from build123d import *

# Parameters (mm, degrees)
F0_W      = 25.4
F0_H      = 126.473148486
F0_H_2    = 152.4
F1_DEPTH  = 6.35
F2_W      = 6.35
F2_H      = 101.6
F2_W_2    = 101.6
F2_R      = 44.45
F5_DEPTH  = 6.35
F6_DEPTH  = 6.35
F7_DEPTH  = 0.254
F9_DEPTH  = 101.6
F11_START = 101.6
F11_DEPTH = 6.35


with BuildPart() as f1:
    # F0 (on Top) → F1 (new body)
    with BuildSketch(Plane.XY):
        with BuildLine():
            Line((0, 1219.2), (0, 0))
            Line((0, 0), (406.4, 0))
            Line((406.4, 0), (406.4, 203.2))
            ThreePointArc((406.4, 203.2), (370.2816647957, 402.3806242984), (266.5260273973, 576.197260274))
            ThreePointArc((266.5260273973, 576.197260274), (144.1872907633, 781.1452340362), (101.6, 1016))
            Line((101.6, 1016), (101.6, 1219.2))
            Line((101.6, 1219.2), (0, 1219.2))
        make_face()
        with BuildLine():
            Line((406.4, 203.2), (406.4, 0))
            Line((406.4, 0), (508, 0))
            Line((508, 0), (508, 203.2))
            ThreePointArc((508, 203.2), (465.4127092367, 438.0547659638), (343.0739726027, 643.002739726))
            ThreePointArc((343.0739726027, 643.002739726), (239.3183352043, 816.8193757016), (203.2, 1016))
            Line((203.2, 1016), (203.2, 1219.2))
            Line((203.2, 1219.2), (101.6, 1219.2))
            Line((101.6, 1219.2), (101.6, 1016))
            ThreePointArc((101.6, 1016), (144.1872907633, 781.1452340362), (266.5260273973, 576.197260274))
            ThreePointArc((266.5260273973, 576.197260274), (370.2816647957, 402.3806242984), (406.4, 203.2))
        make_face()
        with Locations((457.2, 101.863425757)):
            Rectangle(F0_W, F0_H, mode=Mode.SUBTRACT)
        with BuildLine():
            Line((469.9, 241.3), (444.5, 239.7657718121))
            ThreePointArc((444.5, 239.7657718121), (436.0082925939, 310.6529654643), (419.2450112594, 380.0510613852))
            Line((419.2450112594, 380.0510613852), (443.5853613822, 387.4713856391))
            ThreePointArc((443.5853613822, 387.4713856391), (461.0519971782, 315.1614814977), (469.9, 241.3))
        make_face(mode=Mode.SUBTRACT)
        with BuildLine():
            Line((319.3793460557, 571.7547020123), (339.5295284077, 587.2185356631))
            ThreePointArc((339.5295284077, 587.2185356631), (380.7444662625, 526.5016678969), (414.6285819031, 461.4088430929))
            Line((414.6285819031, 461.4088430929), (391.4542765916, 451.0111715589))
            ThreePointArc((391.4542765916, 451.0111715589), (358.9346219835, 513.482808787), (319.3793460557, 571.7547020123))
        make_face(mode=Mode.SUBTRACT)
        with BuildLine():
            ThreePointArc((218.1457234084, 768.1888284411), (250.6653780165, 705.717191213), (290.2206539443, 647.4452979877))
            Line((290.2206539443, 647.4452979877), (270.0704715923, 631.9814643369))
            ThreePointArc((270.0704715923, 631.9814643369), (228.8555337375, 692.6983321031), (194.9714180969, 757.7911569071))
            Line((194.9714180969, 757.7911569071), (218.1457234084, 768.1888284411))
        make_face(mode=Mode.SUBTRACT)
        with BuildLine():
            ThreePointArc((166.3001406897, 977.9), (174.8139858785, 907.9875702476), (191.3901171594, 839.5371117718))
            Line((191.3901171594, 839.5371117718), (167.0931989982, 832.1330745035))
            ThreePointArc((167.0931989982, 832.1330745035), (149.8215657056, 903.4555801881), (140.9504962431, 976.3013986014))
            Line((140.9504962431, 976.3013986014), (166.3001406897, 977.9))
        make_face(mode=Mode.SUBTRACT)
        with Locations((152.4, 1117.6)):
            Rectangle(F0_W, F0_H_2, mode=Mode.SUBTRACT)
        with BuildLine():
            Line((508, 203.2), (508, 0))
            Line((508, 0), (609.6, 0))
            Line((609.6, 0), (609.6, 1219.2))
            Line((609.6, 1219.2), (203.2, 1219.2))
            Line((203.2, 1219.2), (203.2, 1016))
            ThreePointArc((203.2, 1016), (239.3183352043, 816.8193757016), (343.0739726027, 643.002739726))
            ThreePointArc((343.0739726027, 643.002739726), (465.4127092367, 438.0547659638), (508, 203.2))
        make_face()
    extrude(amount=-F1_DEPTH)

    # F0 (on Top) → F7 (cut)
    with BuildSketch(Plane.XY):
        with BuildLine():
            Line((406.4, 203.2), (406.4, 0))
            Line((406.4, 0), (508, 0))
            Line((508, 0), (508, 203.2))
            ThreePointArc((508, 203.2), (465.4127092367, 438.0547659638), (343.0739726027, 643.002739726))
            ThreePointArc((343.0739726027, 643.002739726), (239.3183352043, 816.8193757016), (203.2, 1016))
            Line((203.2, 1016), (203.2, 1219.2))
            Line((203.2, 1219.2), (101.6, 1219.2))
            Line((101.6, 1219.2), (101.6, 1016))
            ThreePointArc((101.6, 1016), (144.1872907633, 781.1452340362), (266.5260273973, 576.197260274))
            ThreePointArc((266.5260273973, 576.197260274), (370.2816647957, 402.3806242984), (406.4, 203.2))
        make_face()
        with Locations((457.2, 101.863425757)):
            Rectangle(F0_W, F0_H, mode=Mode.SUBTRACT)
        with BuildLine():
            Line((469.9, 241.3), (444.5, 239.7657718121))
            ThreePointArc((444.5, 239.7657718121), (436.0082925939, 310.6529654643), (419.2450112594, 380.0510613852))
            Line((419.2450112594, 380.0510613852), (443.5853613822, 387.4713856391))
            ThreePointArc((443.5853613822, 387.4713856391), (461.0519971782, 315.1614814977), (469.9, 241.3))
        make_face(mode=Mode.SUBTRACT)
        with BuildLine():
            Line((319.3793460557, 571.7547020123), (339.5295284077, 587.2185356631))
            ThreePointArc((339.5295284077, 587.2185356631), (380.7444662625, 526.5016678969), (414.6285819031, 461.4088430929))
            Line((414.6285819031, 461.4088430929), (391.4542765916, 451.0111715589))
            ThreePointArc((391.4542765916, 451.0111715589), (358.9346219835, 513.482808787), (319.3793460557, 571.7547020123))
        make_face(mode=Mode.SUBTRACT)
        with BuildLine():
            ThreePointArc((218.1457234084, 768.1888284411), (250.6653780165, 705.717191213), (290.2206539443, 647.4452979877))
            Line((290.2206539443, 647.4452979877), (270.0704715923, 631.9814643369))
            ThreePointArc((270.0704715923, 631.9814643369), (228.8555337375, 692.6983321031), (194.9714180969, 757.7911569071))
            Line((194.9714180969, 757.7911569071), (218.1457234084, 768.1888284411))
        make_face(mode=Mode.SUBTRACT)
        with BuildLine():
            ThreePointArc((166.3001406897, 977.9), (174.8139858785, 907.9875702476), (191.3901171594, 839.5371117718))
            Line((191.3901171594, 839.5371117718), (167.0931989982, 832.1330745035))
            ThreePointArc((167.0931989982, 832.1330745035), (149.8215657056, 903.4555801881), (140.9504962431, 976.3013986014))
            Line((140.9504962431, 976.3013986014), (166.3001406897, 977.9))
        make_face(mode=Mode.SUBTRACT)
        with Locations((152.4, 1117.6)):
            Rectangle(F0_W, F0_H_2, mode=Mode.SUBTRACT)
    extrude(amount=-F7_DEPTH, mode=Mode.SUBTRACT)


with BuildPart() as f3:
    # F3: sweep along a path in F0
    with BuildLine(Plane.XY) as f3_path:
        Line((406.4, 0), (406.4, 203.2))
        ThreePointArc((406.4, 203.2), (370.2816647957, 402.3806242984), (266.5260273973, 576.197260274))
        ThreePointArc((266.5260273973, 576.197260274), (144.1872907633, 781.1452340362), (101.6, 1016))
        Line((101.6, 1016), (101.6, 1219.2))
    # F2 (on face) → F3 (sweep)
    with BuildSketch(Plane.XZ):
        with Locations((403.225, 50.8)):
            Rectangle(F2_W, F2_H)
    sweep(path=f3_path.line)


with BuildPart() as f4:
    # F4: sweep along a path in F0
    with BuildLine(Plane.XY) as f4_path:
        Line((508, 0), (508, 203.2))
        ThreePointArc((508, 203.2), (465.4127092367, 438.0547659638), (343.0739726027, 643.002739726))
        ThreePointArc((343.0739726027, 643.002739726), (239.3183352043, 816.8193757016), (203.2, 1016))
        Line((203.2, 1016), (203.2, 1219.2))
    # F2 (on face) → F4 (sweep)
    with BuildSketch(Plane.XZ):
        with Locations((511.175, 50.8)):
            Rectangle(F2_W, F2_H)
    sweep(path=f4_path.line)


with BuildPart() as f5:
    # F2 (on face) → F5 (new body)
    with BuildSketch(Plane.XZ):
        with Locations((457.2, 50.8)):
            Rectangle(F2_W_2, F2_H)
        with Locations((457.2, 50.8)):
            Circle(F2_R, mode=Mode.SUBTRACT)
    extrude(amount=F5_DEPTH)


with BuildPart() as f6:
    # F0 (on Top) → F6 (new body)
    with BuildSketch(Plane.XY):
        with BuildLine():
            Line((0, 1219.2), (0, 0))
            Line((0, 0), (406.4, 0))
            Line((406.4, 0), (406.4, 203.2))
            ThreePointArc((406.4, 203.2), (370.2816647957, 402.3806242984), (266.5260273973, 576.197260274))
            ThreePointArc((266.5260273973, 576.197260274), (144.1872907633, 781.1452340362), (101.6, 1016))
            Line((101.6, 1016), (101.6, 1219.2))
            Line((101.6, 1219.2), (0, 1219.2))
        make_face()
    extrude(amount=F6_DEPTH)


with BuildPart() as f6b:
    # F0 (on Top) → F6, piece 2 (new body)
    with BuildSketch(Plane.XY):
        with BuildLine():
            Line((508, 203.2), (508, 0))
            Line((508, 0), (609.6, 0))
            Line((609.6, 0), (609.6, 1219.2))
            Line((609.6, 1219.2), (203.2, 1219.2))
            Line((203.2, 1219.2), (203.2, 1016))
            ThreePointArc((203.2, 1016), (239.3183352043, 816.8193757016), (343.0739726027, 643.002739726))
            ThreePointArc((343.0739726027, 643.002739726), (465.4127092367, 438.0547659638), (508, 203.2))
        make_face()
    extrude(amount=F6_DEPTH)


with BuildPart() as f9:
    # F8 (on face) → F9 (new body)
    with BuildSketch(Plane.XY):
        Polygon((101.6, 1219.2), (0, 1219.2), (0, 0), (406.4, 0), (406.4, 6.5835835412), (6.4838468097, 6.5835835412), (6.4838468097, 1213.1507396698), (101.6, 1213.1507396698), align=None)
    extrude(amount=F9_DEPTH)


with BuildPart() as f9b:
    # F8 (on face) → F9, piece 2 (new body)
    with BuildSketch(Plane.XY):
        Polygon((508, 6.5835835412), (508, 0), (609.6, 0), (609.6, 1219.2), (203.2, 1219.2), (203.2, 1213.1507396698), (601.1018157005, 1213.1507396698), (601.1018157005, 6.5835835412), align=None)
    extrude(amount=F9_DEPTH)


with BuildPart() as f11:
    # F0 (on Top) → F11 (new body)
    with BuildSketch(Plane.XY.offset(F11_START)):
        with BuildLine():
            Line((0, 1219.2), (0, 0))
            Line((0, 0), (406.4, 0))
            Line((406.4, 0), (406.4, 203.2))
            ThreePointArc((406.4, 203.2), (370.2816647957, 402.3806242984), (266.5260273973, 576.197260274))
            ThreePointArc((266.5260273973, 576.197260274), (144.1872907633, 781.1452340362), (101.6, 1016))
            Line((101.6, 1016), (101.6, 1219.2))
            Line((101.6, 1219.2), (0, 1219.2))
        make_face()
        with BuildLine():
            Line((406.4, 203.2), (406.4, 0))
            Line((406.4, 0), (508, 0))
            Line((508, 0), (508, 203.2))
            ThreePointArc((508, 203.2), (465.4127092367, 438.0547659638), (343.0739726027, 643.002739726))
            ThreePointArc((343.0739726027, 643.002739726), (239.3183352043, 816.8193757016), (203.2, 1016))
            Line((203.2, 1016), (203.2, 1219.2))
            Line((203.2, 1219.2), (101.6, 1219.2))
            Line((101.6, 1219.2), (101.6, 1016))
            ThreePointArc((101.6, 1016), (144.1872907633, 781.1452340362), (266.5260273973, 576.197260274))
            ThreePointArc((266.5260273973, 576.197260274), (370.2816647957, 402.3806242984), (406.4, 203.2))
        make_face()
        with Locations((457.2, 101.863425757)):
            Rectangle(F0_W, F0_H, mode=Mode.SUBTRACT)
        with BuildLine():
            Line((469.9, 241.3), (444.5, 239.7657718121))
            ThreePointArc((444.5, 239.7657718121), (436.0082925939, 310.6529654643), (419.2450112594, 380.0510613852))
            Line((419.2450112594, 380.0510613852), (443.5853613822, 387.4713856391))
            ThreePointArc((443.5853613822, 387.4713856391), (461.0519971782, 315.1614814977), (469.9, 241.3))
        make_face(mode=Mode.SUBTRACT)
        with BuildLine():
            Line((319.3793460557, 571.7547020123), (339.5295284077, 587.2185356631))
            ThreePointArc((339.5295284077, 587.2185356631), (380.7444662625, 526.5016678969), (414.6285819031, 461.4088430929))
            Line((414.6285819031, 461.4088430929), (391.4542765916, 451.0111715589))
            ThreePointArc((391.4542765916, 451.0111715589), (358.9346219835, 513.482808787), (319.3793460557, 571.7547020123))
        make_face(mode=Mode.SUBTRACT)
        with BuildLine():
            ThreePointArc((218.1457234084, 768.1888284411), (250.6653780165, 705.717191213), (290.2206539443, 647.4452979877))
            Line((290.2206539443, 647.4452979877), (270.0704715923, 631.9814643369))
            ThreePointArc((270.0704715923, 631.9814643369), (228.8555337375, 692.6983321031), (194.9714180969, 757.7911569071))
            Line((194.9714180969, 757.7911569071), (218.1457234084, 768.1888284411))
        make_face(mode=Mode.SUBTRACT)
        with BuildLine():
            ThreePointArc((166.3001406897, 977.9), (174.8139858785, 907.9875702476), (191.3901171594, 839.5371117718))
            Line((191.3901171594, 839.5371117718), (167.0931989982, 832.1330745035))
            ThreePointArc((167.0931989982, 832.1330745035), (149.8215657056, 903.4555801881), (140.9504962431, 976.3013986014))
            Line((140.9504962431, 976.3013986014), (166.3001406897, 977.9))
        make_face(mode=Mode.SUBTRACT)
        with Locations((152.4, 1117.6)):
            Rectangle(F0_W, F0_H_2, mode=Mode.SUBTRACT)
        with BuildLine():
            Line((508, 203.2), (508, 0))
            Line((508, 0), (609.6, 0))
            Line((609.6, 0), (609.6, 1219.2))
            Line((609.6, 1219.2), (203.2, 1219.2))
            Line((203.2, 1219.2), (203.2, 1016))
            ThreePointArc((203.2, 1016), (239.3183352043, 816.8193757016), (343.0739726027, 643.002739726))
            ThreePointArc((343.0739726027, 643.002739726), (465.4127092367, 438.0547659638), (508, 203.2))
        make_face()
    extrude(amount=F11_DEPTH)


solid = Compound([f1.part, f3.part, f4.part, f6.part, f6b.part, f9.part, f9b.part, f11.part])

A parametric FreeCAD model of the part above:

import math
import FreeCAD as App
import Part
import Sketcher
from FreeCAD import Vector
Q = App.Units.Quantity

doc = App.newDocument("Part")
body = doc.addObject("PartDesign::Body", "Body")

# Sketch on XY plane
sketch1 = doc.addObject("Sketcher::SketchObject", "Sketch")
body.addObject(sketch1)
sketch1.AttachmentSupport = (doc.XY_Plane, [""])
sketch1.MapMode = "FlatFace"
sketch1.addGeometry([
    Part.LineSegment(Vector(0, 1219, 0), Vector(0, 0, 0)),  # 0
    Part.LineSegment(Vector(0, 0, 0), Vector(610, 0, 0)),  # 1
    Part.LineSegment(Vector(610, 0, 0), Vector(610, 1219, 0)),  # 2
    Part.LineSegment(Vector(610, 1219, 0), Vector(0, 1219, 0)),  # 3
    Part.LineSegment(Vector(470, 39, 0), Vector(444, 39, 0)),  # 4
    Part.LineSegment(Vector(444, 39, 0), Vector(444, 165, 0)),  # 5
    Part.LineSegment(Vector(444, 165, 0), Vector(470, 165, 0)),  # 6
    Part.LineSegment(Vector(470, 165, 0), Vector(470, 39, 0)),  # 7
    Part.ArcOfCircle(Part.Circle(Vector(-161, 203, 0), Vector(0, 0, 1), 632), math.radians(3.46), math.radians(16.95)),  # 8
    Part.LineSegment(Vector(470, 241, 0), Vector(444, 240, 0)),  # 9
    Part.ArcOfCircle(Part.Circle(Vector(-161, 203, 0), Vector(0, 0, 1), 606), math.radians(3.46), math.radians(16.95)),  # 10
    Part.LineSegment(Vector(419, 380, 0), Vector(444, 387, 0)),  # 11
    Part.ArcOfCircle(Part.Circle(Vector(-161, 203, 0), Vector(0, 0, 1), 605), math.radians(24.16), math.radians(37.5)),  # 12
    Part.LineSegment(Vector(319, 572, 0), Vector(340, 587, 0)),  # 13
    Part.ArcOfCircle(Part.Circle(Vector(-161, 203, 0), Vector(0, 0, 1), 631), math.radians(24.16), math.radians(37.5)),  # 14
    Part.LineSegment(Vector(415, 461, 0), Vector(391, 451, 0)),  # 15
    Part.LineSegment(Vector(195, 758, 0), Vector(218, 768, 0)),  # 16
    Part.ArcOfCircle(Part.Circle(Vector(770, 1016, 0), Vector(0, 0, 1), 605), math.radians(-155.84), math.radians(-142.5)),  # 17
    Part.LineSegment(Vector(290, 647, 0), Vector(270, 632, 0)),  # 18
    Part.ArcOfCircle(Part.Circle(Vector(770, 1016, 0), Vector(0, 0, 1), 631), math.radians(-155.84), math.radians(-142.5)),  # 19
    Part.LineSegment(Vector(141, 976, 0), Vector(166, 978, 0)),  # 20
    Part.ArcOfCircle(Part.Circle(Vector(770, 1016, 0), Vector(0, 0, 1), 605), math.radians(-176.39), math.radians(-163.05)),  # 21
    Part.LineSegment(Vector(191, 840, 0), Vector(167, 832, 0)),  # 22
    Part.ArcOfCircle(Part.Circle(Vector(770, 1016, 0), Vector(0, 0, 1), 631), math.radians(-176.39), math.radians(-163.05)),  # 23
    Part.LineSegment(Vector(165, 1041, 0), Vector(140, 1041, 0)),  # 24
    Part.LineSegment(Vector(140, 1041, 0), Vector(140, 1194, 0)),  # 25
    Part.LineSegment(Vector(140, 1194, 0), Vector(165, 1194, 0)),  # 26
    Part.LineSegment(Vector(165, 1194, 0), Vector(165, 1041, 0)),  # 27
], False)
sketch1.addConstraint([
    Sketcher.Constraint("Coincident", 0, 2, 1, 1),
    Sketcher.Constraint("Coincident", 1, 2, 2, 1),
    Sketcher.Constraint("Coincident", 2, 2, 3, 1),
    Sketcher.Constraint("Coincident", 3, 2, 0, 1),
    Sketcher.Constraint("Coincident", 4, 2, 5, 1),
    Sketcher.Constraint("Coincident", 5, 2, 6, 1),
    Sketcher.Constraint("Coincident", 6, 2, 7, 1),
    Sketcher.Constraint("Coincident", 7, 2, 4, 1),
    Sketcher.Constraint("Coincident", 8, 1, 9, 1),
    Sketcher.Constraint("Coincident", 9, 2, 10, 1),
    Sketcher.Constraint("Coincident", 10, 2, 11, 1),
    Sketcher.Constraint("Coincident", 11, 2, 8, 2),
    Sketcher.Constraint("Coincident", 12, 2, 13, 1),
    Sketcher.Constraint("Coincident", 13, 2, 14, 2),
    Sketcher.Constraint("Coincident", 14, 1, 15, 1),
    Sketcher.Constraint("Coincident", 15, 2, 12, 1),
    Sketcher.Constraint("Coincident", 16, 2, 17, 1),
    Sketcher.Constraint("Coincident", 17, 2, 18, 1),
    Sketcher.Constraint("Coincident", 18, 2, 19, 2),
    Sketcher.Constraint("Coincident", 19, 1, 16, 1),
    Sketcher.Constraint("Coincident", 20, 2, 21, 1),
    Sketcher.Constraint("Coincident", 21, 2, 22, 1),
    Sketcher.Constraint("Coincident", 22, 2, 23, 2),
    Sketcher.Constraint("Coincident", 23, 1, 20, 1),
    Sketcher.Constraint("Coincident", 24, 2, 25, 1),
    Sketcher.Constraint("Coincident", 25, 2, 26, 1),
    Sketcher.Constraint("Coincident", 26, 2, 27, 1),
    Sketcher.Constraint("Coincident", 27, 2, 24, 1),
    Sketcher.Constraint("Vertical", 0),
    Sketcher.Constraint("Horizontal", 1),
    Sketcher.Constraint("Vertical", 2),
    Sketcher.Constraint("Horizontal", 3),
    Sketcher.Constraint("Horizontal", 4),
    Sketcher.Constraint("Vertical", 5),
    Sketcher.Constraint("Horizontal", 6),
    Sketcher.Constraint("Vertical", 7),
    Sketcher.Constraint("Horizontal", 24),
    Sketcher.Constraint("Vertical", 25),
    Sketcher.Constraint("Horizontal", 26),
    Sketcher.Constraint("Vertical", 27),
    Sketcher.Constraint("Coincident", 0, 2, -1, 1),
    Sketcher.Constraint("Coincident", 10, 3, 8, 3),
    Sketcher.Constraint("Coincident", 12, 3, 8, 3),
    Sketcher.Constraint("Coincident", 14, 3, 8, 3),
    Sketcher.Constraint("Coincident", 19, 3, 17, 3),
    Sketcher.Constraint("Coincident", 21, 3, 17, 3),
    Sketcher.Constraint("Coincident", 23, 3, 17, 3),
    Sketcher.Constraint("Equal", 12, 17),
    Sketcher.Constraint("Equal", 14, 19),
    Sketcher.Constraint("Equal", 17, 21),
    Sketcher.Constraint("Equal", 19, 23),
    Sketcher.Constraint("Parallel", 15, 16),
    Sketcher.Constraint("Parallel", 13, 18),
    Sketcher.Constraint("Vertical", 7, 2, 8, 1),
    Sketcher.Constraint("Vertical", 5, 2, 9, 2),
    Sketcher.Constraint("Equal", 6, 24),
    Sketcher.Constraint("DistanceX", 1, 1, 1, 2, Q("24 in")),
    Sketcher.Constraint("DistanceX", 4, 2, 4, 1, Q("1 in")),
    Sketcher.Constraint("DistanceY", 0, 2, 0, 1, Q("48 in")),
    Sketcher.Constraint("DistanceY", 25, 1, 25, 2, Q("6 in")),
    Sketcher.Constraint("Distance", 13, Q("1 in")),
    Sketcher.Constraint("DistanceY", -1, 1, 8, 3, Q("8 in")),
    Sketcher.Constraint("DistanceY", -1, 1, 17, 3, Q("40 in")),
    Sketcher.Constraint("DistanceY", -1, 1, 24, 2, Q("41 in")),
    Sketcher.Constraint("DistanceX", -1, 1, 4, 2, Q("17.5 in")),
    Sketcher.Constraint("DistanceY", -1, 1, 5, 2, Q("6.5 in")),
    Sketcher.Constraint("DistanceY", -1, 1, 20, 2, Q("38.5 in")),
    Sketcher.Constraint("DistanceX", -1, 1, 24, 2, Q("5.5 in")),
    Sketcher.Constraint("Radius", 8, 631.91629),
    Sketcher.Constraint("Radius", 10, 606.469997),
    Sketcher.Constraint("Radius", 12, 605.366667),
    Sketcher.Constraint("DistanceY", 5, 1, 5, 2, 126.473148),
    Sketcher.Constraint("DistanceX", -1, 1, 22, 2, 167.093199),
    Sketcher.Constraint("DistanceY", -1, 1, 9, 2, 239.765772),
    Sketcher.Constraint("DistanceX", -1, 1, 11, 2, 443.585361),
    Sketcher.Constraint("DistanceX", -1, 1, 13, 2, 339.529528),
    Sketcher.Constraint("DistanceY", -1, 1, 15, 2, 451.011172),
    Sketcher.Constraint("DistanceY", -1, 1, 16, 2, 768.188828),
    Sketcher.Constraint("DistanceX", -1, 1, 18, 2, 270.070472),
    Sketcher.Constraint("DistanceX", -1, 1, 20, 2, 166.300141),
    Sketcher.Constraint("Angle", 11, Q("16.954206 deg")),
    Sketcher.Constraint("Angle", 13, Q("37.503677 deg")),
    Sketcher.Constraint("Angle", 15, Q("-155.835542 deg")),
    Sketcher.Constraint("Angle", 20, Q("3.608413 deg")),
    Sketcher.Constraint("Angle", 22, Q("-163.052368 deg")),
])
pad1 = doc.addObject("PartDesign::Pad", "Pad")
body.addObject(pad1)
pad1.Profile = sketch1
pad1.Length = Q("0.25 in")
pad1.Reversed = True

# Sketch on XY plane
sketch2 = doc.addObject("Sketcher::SketchObject", "Sketch001")
body.addObject(sketch2)
sketch2.AttachmentSupport = (doc.XY_Plane, [""])
sketch2.MapMode = "FlatFace"
sketch2.addGeometry([
    Part.LineSegment(Vector(406, 203, 0), Vector(406, 0, 0)),  # 0
    Part.LineSegment(Vector(406, 0, 0), Vector(508, 0, 0)),  # 1
    Part.LineSegment(Vector(508, 0, 0), Vector(508, 203, 0)),  # 2
    Part.ArcOfCircle(Part.Circle(Vector(-161, 203, 0), Vector(0, 0, 1), 669), math.radians(0), math.radians(41)),  # 3
    Part.ArcOfCircle(Part.Circle(Vector(770, 1016, 0), Vector(0, 0, 1), 567), math.radians(180), math.radians(221)),  # 4
    Part.LineSegment(Vector(203, 1016, 0), Vector(203, 1219, 0)),  # 5
    Part.LineSegment(Vector(203, 1219, 0), Vector(102, 1219, 0)),  # 6
    Part.LineSegment(Vector(102, 1219, 0), Vector(102, 1016, 0)),  # 7
    Part.ArcOfCircle(Part.Circle(Vector(770, 1016, 0), Vector(0, 0, 1), 669), math.radians(180), math.radians(221)),  # 8
    Part.ArcOfCircle(Part.Circle(Vector(-161, 203, 0), Vector(0, 0, 1), 567), math.radians(0), math.radians(41)),  # 9
    Part.LineSegment(Vector(470, 39, 0), Vector(444, 39, 0)),  # 10
    Part.LineSegment(Vector(444, 39, 0), Vector(444, 165, 0)),  # 11
    Part.LineSegment(Vector(444, 165, 0), Vector(470, 165, 0)),  # 12
    Part.LineSegment(Vector(470, 165, 0), Vector(470, 39, 0)),  # 13
    Part.ArcOfCircle(Part.Circle(Vector(-161, 203, 0), Vector(0, 0, 1), 632), math.radians(3.46), math.radians(16.95)),  # 14
    Part.LineSegment(Vector(470, 241, 0), Vector(444, 240, 0)),  # 15
    Part.ArcOfCircle(Part.Circle(Vector(-161, 203, 0), Vector(0, 0, 1), 606), math.radians(3.46), math.radians(16.95)),  # 16
    Part.LineSegment(Vector(419, 380, 0), Vector(444, 387, 0)),  # 17
    Part.ArcOfCircle(Part.Circle(Vector(-161, 203, 0), Vector(0, 0, 1), 605), math.radians(24.16), math.radians(37.5)),  # 18
    Part.LineSegment(Vector(319, 572, 0), Vector(340, 587, 0)),  # 19
    Part.ArcOfCircle(Part.Circle(Vector(-161, 203, 0), Vector(0, 0, 1), 631), math.radians(24.16), math.radians(37.5)),  # 20
    Part.LineSegment(Vector(415, 461, 0), Vector(391, 451, 0)),  # 21
    Part.LineSegment(Vector(195, 758, 0), Vector(218, 768, 0)),  # 22
    Part.ArcOfCircle(Part.Circle(Vector(770, 1016, 0), Vector(0, 0, 1), 605), math.radians(-155.84), math.radians(-142.5)),  # 23
    Part.LineSegment(Vector(290, 647, 0), Vector(270, 632, 0)),  # 24
    Part.ArcOfCircle(Part.Circle(Vector(770, 1016, 0), Vector(0, 0, 1), 631), math.radians(-155.84), math.radians(-142.5)),  # 25
    Part.LineSegment(Vector(141, 976, 0), Vector(166, 978, 0)),  # 26
    Part.ArcOfCircle(Part.Circle(Vector(770, 1016, 0), Vector(0, 0, 1), 605), math.radians(-176.39), math.radians(-163.05)),  # 27
    Part.LineSegment(Vector(191, 840, 0), Vector(167, 832, 0)),  # 28
    Part.ArcOfCircle(Part.Circle(Vector(770, 1016, 0), Vector(0, 0, 1), 631), math.radians(-176.39), math.radians(-163.05)),  # 29
    Part.LineSegment(Vector(165, 1041, 0), Vector(140, 1041, 0)),  # 30
    Part.LineSegment(Vector(140, 1041, 0), Vector(140, 1194, 0)),  # 31
    Part.LineSegment(Vector(140, 1194, 0), Vector(165, 1194, 0)),  # 32
    Part.LineSegment(Vector(165, 1194, 0), Vector(165, 1041, 0)),  # 33
], False)
sketch2.addConstraint([
    Sketcher.Constraint("Coincident", 0, 2, 1, 1),
    Sketcher.Constraint("Coincident", 1, 2, 2, 1),
    Sketcher.Constraint("Tangent", 2, 2, 3, 1),
    Sketcher.Constraint("Tangent", 3, 2, 4, 2),
    Sketcher.Constraint("Tangent", 4, 1, 5, 1),
    Sketcher.Constraint("Coincident", 5, 2, 6, 1),
    Sketcher.Constraint("Coincident", 6, 2, 7, 1),
    Sketcher.Constraint("Tangent", 7, 2, 8, 1),
    Sketcher.Constraint("Tangent", 8, 2, 9, 2),
    Sketcher.Constraint("Tangent", 9, 1, 0, 1),
    Sketcher.Constraint("Coincident", 10, 2, 11, 1),
    Sketcher.Constraint("Coincident", 11, 2, 12, 1),
    Sketcher.Constraint("Coincident", 12, 2, 13, 1),
    Sketcher.Constraint("Coincident", 13, 2, 10, 1),
    Sketcher.Constraint("Coincident", 14, 1, 15, 1),
    Sketcher.Constraint("Coincident", 15, 2, 16, 1),
    Sketcher.Constraint("Coincident", 16, 2, 17, 1),
    Sketcher.Constraint("Coincident", 17, 2, 14, 2),
    Sketcher.Constraint("Coincident", 18, 2, 19, 1),
    Sketcher.Constraint("Coincident", 19, 2, 20, 2),
    Sketcher.Constraint("Coincident", 20, 1, 21, 1),
    Sketcher.Constraint("Coincident", 21, 2, 18, 1),
    Sketcher.Constraint("Coincident", 22, 2, 23, 1),
    Sketcher.Constraint("Coincident", 23, 2, 24, 1),
    Sketcher.Constraint("Coincident", 24, 2, 25, 2),
    Sketcher.Constraint("Coincident", 25, 1, 22, 1),
    Sketcher.Constraint("Coincident", 26, 2, 27, 1),
    Sketcher.Constraint("Coincident", 27, 2, 28, 1),
    Sketcher.Constraint("Coincident", 28, 2, 29, 2),
    Sketcher.Constraint("Coincident", 29, 1, 26, 1),
    Sketcher.Constraint("Coincident", 30, 2, 31, 1),
    Sketcher.Constraint("Coincident", 31, 2, 32, 1),
    Sketcher.Constraint("Coincident", 32, 2, 33, 1),
    Sketcher.Constraint("Coincident", 33, 2, 30, 1),
    Sketcher.Constraint("Vertical", 0),
    Sketcher.Constraint("Horizontal", 1),
    Sketcher.Constraint("Vertical", 2),
    Sketcher.Constraint("Vertical", 5),
    Sketcher.Constraint("Horizontal", 6),
    Sketcher.Constraint("Vertical", 7),
    Sketcher.Constraint("Horizontal", 10),
    Sketcher.Constraint("Vertical", 11),
    Sketcher.Constraint("Horizontal", 12),
    Sketcher.Constraint("Vertical", 13),
    Sketcher.Constraint("Horizontal", 30),
    Sketcher.Constraint("Vertical", 31),
    Sketcher.Constraint("Horizontal", 32),
    Sketcher.Constraint("Vertical", 33),
    Sketcher.Constraint("Coincident", 8, 3, 4, 3),
    Sketcher.Constraint("Coincident", 9, 3, 3, 3),
    Sketcher.Constraint("Coincident", 14, 3, 3, 3),
    Sketcher.Constraint("Coincident", 16, 3, 3, 3),
    Sketcher.Constraint("Coincident", 18, 3, 3, 3),
    Sketcher.Constraint("Coincident", 20, 3, 3, 3),
    Sketcher.Constraint("Coincident", 23, 3, 4, 3),
    Sketcher.Constraint("Coincident", 25, 3, 4, 3),
    Sketcher.Constraint("Coincident", 27, 3, 4, 3),
    Sketcher.Constraint("Coincident", 29, 3, 4, 3),
    Sketcher.Constraint("Equal", 3, 8),
    Sketcher.Constraint("Equal", 18, 23),
    Sketcher.Constraint("Equal", 20, 25),
    Sketcher.Constraint("Equal", 23, 27),
    Sketcher.Constraint("Equal", 25, 29),
    Sketcher.Constraint("PointOnObject", 0, 2, -1),
    Sketcher.Constraint("Parallel", 21, 22),
    Sketcher.Constraint("Parallel", 19, 24),
    Sketcher.Constraint("Vertical", 13, 2, 14, 1),
    Sketcher.Constraint("Vertical", 11, 2, 15, 2),
    Sketcher.Constraint("Equal", 12, 30),
    Sketcher.Constraint("Equal", 2, 5),
    Sketcher.Constraint("DistanceX", 1, 1, 1, 2, Q("4 in")),
    Sketcher.Constraint("DistanceX", 10, 2, 10, 1, Q("1 in")),
    Sketcher.Constraint("DistanceY", 0, 2, 0, 1, Q("8 in")),
    Sketcher.Constraint("DistanceY", 31, 1, 31, 2, Q("6 in")),
    Sketcher.Constraint("Distance", 19, Q("1 in")),
    Sketcher.Constraint("DistanceY", -1, 1, 4, 3, Q("40 in")),
    Sketcher.Constraint("DistanceX", -1, 1, 0, 2, Q("16 in")),
    Sketcher.Constraint("DistanceX", -1, 1, 4, 1, Q("8 in")),
    Sketcher.Constraint("DistanceY", -1, 1, 30, 2, Q("41 in")),
    Sketcher.Constraint("DistanceX", -1, 1, 10, 2, Q("17.5 in")),
    Sketcher.Constraint("DistanceY", -1, 1, 11, 2, Q("6.5 in")),
    Sketcher.Constraint("DistanceY", -1, 1, 26, 2, Q("38.5 in")),
    Sketcher.Constraint("DistanceX", -1, 1, 30, 2, Q("5.5 in")),
    Sketcher.Constraint("Radius", 14, 631.91629),
    Sketcher.Constraint("Radius", 16, 606.469997),
    Sketcher.Constraint("Radius", 18, 605.366667),
    Sketcher.Constraint("DistanceY", 11, 1, 11, 2, 126.473148),
    Sketcher.Constraint("DistanceX", -1, 1, 28, 2, 167.093199),
    Sketcher.Constraint("DistanceX", -1, 1, 17, 2, 443.585361),
    Sketcher.Constraint("DistanceX", -1, 1, 19, 2, 339.529528),
    Sketcher.Constraint("DistanceY", -1, 1, 21, 2, 451.011172),
    Sketcher.Constraint("DistanceY", -1, 1, 22, 2, 768.188828),
    Sketcher.Constraint("DistanceX", -1, 1, 24, 2, 270.070472),
    Sketcher.Constraint("Angle", 17, Q("16.954206 deg")),
    Sketcher.Constraint("Angle", 19, Q("37.503677 deg")),
    Sketcher.Constraint("Angle", 21, Q("-155.835542 deg")),
    Sketcher.Constraint("Angle", 26, Q("3.608413 deg")),
    Sketcher.Constraint("Angle", 28, Q("-163.052368 deg")),
])
pocket1 = doc.addObject("PartDesign::Pocket", "Pocket")
body.addObject(pocket1)
pocket1.Profile = sketch2
pocket1.Length = Q("0.01 in")
body2 = doc.addObject("PartDesign::Body", "Body001")

# Sketch on XZ plane
sketch3 = doc.addObject("Sketcher::SketchObject", "Sketch002")
body2.addObject(sketch3)
sketch3.AttachmentSupport = (doc.getObject("XZ_Plane001"), [""])
sketch3.MapMode = "FlatFace"
sketch3.addGeometry([
    Part.LineSegment(Vector(400, 102, 0), Vector(400, 0, 0)),
    Part.LineSegment(Vector(400, 0, 0), Vector(406, 0, 0)),
    Part.LineSegment(Vector(406, 0, 0), Vector(406, 102, 0)),
    Part.LineSegment(Vector(406, 102, 0), Vector(400, 102, 0)),
], False)
sketch3.addConstraint([
    Sketcher.Constraint("Coincident", 0, 2, 1, 1),
    Sketcher.Constraint("Coincident", 1, 2, 2, 1),
    Sketcher.Constraint("Coincident", 2, 2, 3, 1),
    Sketcher.Constraint("Coincident", 3, 2, 0, 1),
    Sketcher.Constraint("Vertical", 0),
    Sketcher.Constraint("Horizontal", 1),
    Sketcher.Constraint("Vertical", 2),
    Sketcher.Constraint("Horizontal", 3),
    Sketcher.Constraint("PointOnObject", 0, 2, -1),
    Sketcher.Constraint("DistanceY", 0, 2, 0, 1, Q("4 in")),
    Sketcher.Constraint("DistanceX", -1, 1, 1, 2, Q("16 in")),
    Sketcher.Constraint("DistanceX", 1, 1, 1, 2, Q("0.25 in")),
])

# Sketch on XY plane
sketch4 = doc.addObject("Sketcher::SketchObject", "Sketch003")
body2.addObject(sketch4)
sketch4.AttachmentSupport = (doc.getObject("XY_Plane001"), [""])
sketch4.MapMode = "FlatFace"
sketch4.addGeometry([
    Part.LineSegment(Vector(406, 0, 0), Vector(406, 203, 0)),
    Part.ArcOfCircle(Part.Circle(Vector(-161, 203, 0), Vector(0, 0, 1), 567), math.radians(0), math.radians(41)),
    Part.ArcOfCircle(Part.Circle(Vector(770, 1016, 0), Vector(0, 0, 1), 669), math.radians(180), math.radians(221)),
    Part.LineSegment(Vector(102, 1016, 0), Vector(102, 1219, 0)),
], False)
sketch4.addConstraint([
    Sketcher.Constraint("Tangent", 0, 2, 1, 1),
    Sketcher.Constraint("Tangent", 1, 2, 2, 2),
    Sketcher.Constraint("Tangent", 2, 1, 3, 1),
    Sketcher.Constraint("Vertical", 0),
    Sketcher.Constraint("Vertical", 3),
    Sketcher.Constraint("PointOnObject", 0, 1, -1),
    Sketcher.Constraint("Equal", 0, 3),
    Sketcher.Constraint("DistanceY", 0, 1, 0, 2, Q("8 in")),
    Sketcher.Constraint("DistanceY", -1, 1, 2, 3, Q("40 in")),
    Sketcher.Constraint("DistanceX", -1, 1, 0, 1, Q("16 in")),
    Sketcher.Constraint("DistanceX", -1, 1, 2, 1, Q("4 in")),
    Sketcher.Constraint("Radius", 1, 567.266667),
])
doc.recompute()

additivepipe = doc.addObject("PartDesign::AdditivePipe", "AdditivePipe")
body2.addObject(additivepipe)
additivepipe.Profile = sketch3
additivepipe.Spine = (sketch4, ["Edge1", "Edge2", "Edge3", "Edge4"])
body3 = doc.addObject("PartDesign::Body", "Body002")

# Sketch on XZ plane
sketch5 = doc.addObject("Sketcher::SketchObject", "Sketch004")
body3.addObject(sketch5)
sketch5.AttachmentSupport = (doc.getObject("XZ_Plane002"), [""])
sketch5.MapMode = "FlatFace"
sketch5.addGeometry([
    Part.LineSegment(Vector(508, 102, 0), Vector(508, 0, 0)),
    Part.LineSegment(Vector(508, 0, 0), Vector(514, 0, 0)),
    Part.LineSegment(Vector(514, 0, 0), Vector(514, 102, 0)),
    Part.LineSegment(Vector(514, 102, 0), Vector(508, 102, 0)),
], False)
sketch5.addConstraint([
    Sketcher.Constraint("Coincident", 0, 2, 1, 1),
    Sketcher.Constraint("Coincident", 1, 2, 2, 1),
    Sketcher.Constraint("Coincident", 2, 2, 3, 1),
    Sketcher.Constraint("Coincident", 3, 2, 0, 1),
    Sketcher.Constraint("Vertical", 0),
    Sketcher.Constraint("Horizontal", 1),
    Sketcher.Constraint("Vertical", 2),
    Sketcher.Constraint("Horizontal", 3),
    Sketcher.Constraint("PointOnObject", 0, 2, -1),
    Sketcher.Constraint("DistanceY", 0, 2, 0, 1, Q("4 in")),
    Sketcher.Constraint("DistanceX", -1, 1, 0, 2, Q("20 in")),
    Sketcher.Constraint("DistanceX", 1, 1, 1, 2, Q("0.25 in")),
])

# Sketch on XY plane
sketch6 = doc.addObject("Sketcher::SketchObject", "Sketch005")
body3.addObject(sketch6)
sketch6.AttachmentSupport = (doc.getObject("XY_Plane002"), [""])
sketch6.MapMode = "FlatFace"
sketch6.addGeometry([
    Part.LineSegment(Vector(508, 0, 0), Vector(508, 203, 0)),
    Part.ArcOfCircle(Part.Circle(Vector(-161, 203, 0), Vector(0, 0, 1), 669), math.radians(0), math.radians(41)),
    Part.ArcOfCircle(Part.Circle(Vector(770, 1016, 0), Vector(0, 0, 1), 567), math.radians(180), math.radians(221)),
    Part.LineSegment(Vector(203, 1016, 0), Vector(203, 1219, 0)),
], False)
sketch6.addConstraint([
    Sketcher.Constraint("Tangent", 0, 2, 1, 1),
    Sketcher.Constraint("Tangent", 1, 2, 2, 2),
    Sketcher.Constraint("Tangent", 2, 1, 3, 1),
    Sketcher.Constraint("Vertical", 0),
    Sketcher.Constraint("Vertical", 3),
    Sketcher.Constraint("PointOnObject", 0, 1, -1),
    Sketcher.Constraint("Equal", 0, 3),
    Sketcher.Constraint("DistanceY", 0, 1, 0, 2, Q("8 in")),
    Sketcher.Constraint("DistanceY", -1, 1, 2, 3, Q("40 in")),
    Sketcher.Constraint("DistanceX", -1, 1, 0, 1, Q("20 in")),
    Sketcher.Constraint("DistanceX", -1, 1, 2, 1, Q("8 in")),
    Sketcher.Constraint("Radius", 1, 668.866667),
])
doc.recompute()

additivepipe2 = doc.addObject("PartDesign::AdditivePipe", "AdditivePipe001")
body3.addObject(additivepipe2)
additivepipe2.Profile = sketch5
additivepipe2.Spine = (sketch6, ["Edge1", "Edge2", "Edge3", "Edge4"])
body4 = doc.addObject("PartDesign::Body", "Body003")

# Sketch on XZ plane
sketch7 = doc.addObject("Sketcher::SketchObject", "Sketch006")
body4.addObject(sketch7)
sketch7.AttachmentSupport = (doc.getObject("XZ_Plane003"), [""])
sketch7.MapMode = "FlatFace"
sketch7.addGeometry([
    Part.LineSegment(Vector(406, 102, 0), Vector(406, 0, 0)),  # 0
    Part.LineSegment(Vector(406, 0, 0), Vector(508, 0, 0)),  # 1
    Part.LineSegment(Vector(508, 0, 0), Vector(508, 102, 0)),  # 2
    Part.LineSegment(Vector(508, 102, 0), Vector(406, 102, 0)),  # 3
    Part.Circle(Vector(457, 51, 0), Vector(0, 0, 1), 44),  # 4
], False)
sketch7.addConstraint([
    Sketcher.Constraint("Coincident", 0, 2, 1, 1),
    Sketcher.Constraint("Coincident", 1, 2, 2, 1),
    Sketcher.Constraint("Coincident", 2, 2, 3, 1),
    Sketcher.Constraint("Coincident", 3, 2, 0, 1),
    Sketcher.Constraint("Vertical", 0),
    Sketcher.Constraint("Horizontal", 1),
    Sketcher.Constraint("Vertical", 2),
    Sketcher.Constraint("Horizontal", 3),
    Sketcher.Constraint("PointOnObject", 0, 2, -1),
    Sketcher.Constraint("Equal", 3, 0),
    Sketcher.Constraint("Diameter", 4, Q("3.5 in")),
    Sketcher.Constraint("DistanceX", 1, 1, 1, 2, Q("4 in")),
    Sketcher.Constraint("DistanceX", -1, 1, 4, 3, Q("18 in")),
    Sketcher.Constraint("DistanceY", -1, 1, 4, 3, Q("2 in")),
    Sketcher.Constraint("DistanceX", -1, 1, 0, 2, Q("16 in")),
])
pad2 = doc.addObject("PartDesign::Pad", "Pad001")
body4.addObject(pad2)
pad2.Profile = sketch7
pad2.Length = Q("0.25 in")
body5 = doc.addObject("PartDesign::Body", "Body004")

# Sketch on XY plane
sketch8 = doc.addObject("Sketcher::SketchObject", "Sketch007")
body5.addObject(sketch8)
sketch8.AttachmentSupport = (doc.getObject("XY_Plane004"), [""])
sketch8.MapMode = "FlatFace"
sketch8.addGeometry([
    Part.LineSegment(Vector(0, 1219, 0), Vector(0, 0, 0)),  # 0
    Part.LineSegment(Vector(0, 0, 0), Vector(406, 0, 0)),  # 1
    Part.LineSegment(Vector(406, 0, 0), Vector(406, 203, 0)),  # 2
    Part.ArcOfCircle(Part.Circle(Vector(-161, 203, 0), Vector(0, 0, 1), 567), math.radians(0), math.radians(41)),  # 3
    Part.ArcOfCircle(Part.Circle(Vector(770, 1016, 0), Vector(0, 0, 1), 669), math.radians(180), math.radians(221)),  # 4
    Part.LineSegment(Vector(102, 1016, 0), Vector(102, 1219, 0)),  # 5
    Part.LineSegment(Vector(102, 1219, 0), Vector(0, 1219, 0)),  # 6
], False)
sketch8.addConstraint([
    Sketcher.Constraint("Coincident", 0, 2, 1, 1),
    Sketcher.Constraint("Coincident", 1, 2, 2, 1),
    Sketcher.Constraint("Tangent", 2, 2, 3, 1),
    Sketcher.Constraint("Tangent", 3, 2, 4, 2),
    Sketcher.Constraint("Tangent", 4, 1, 5, 1),
    Sketcher.Constraint("Coincident", 5, 2, 6, 1),
    Sketcher.Constraint("Coincident", 6, 2, 0, 1),
    Sketcher.Constraint("Vertical", 0),
    Sketcher.Constraint("Horizontal", 1),
    Sketcher.Constraint("Vertical", 2),
    Sketcher.Constraint("Vertical", 5),
    Sketcher.Constraint("Horizontal", 6),
    Sketcher.Constraint("Coincident", 0, 2, -1, 1),
    Sketcher.Constraint("Equal", 2, 5),
    Sketcher.Constraint("DistanceX", 1, 1, 1, 2, Q("16 in")),
    Sketcher.Constraint("DistanceX", 6, 2, 6, 1, Q("4 in")),
    Sketcher.Constraint("DistanceY", 0, 2, 0, 1, Q("48 in")),
    Sketcher.Constraint("DistanceY", 2, 1, 2, 2, Q("8 in")),
    Sketcher.Constraint("Radius", 3, 567.266667),
])
pad3 = doc.addObject("PartDesign::Pad", "Pad002")
body5.addObject(pad3)
pad3.Profile = sketch8
pad3.Length = Q("0.25 in")
body6 = doc.addObject("PartDesign::Body", "Body005")

# Sketch on XY plane
sketch9 = doc.addObject("Sketcher::SketchObject", "Sketch008")
body6.addObject(sketch9)
sketch9.AttachmentSupport = (doc.getObject("XY_Plane005"), [""])
sketch9.MapMode = "FlatFace"
sketch9.addGeometry([
    Part.LineSegment(Vector(508, 203, 0), Vector(508, 0, 0)),  # 0
    Part.LineSegment(Vector(508, 0, 0), Vector(610, 0, 0)),  # 1
    Part.LineSegment(Vector(610, 0, 0), Vector(610, 1219, 0)),  # 2
    Part.LineSegment(Vector(610, 1219, 0), Vector(203, 1219, 0)),  # 3
    Part.LineSegment(Vector(203, 1219, 0), Vector(203, 1016, 0)),  # 4
    Part.ArcOfCircle(Part.Circle(Vector(770, 1016, 0), Vector(0, 0, 1), 567), math.radians(180), math.radians(221)),  # 5
    Part.ArcOfCircle(Part.Circle(Vector(-161, 203, 0), Vector(0, 0, 1), 669), math.radians(0), math.radians(41)),  # 6
], False)
sketch9.addConstraint([
    Sketcher.Constraint("Coincident", 0, 2, 1, 1),
    Sketcher.Constraint("Coincident", 1, 2, 2, 1),
    Sketcher.Constraint("Coincident", 2, 2, 3, 1),
    Sketcher.Constraint("Coincident", 3, 2, 4, 1),
    Sketcher.Constraint("Tangent", 4, 2, 5, 1),
    Sketcher.Constraint("Tangent", 5, 2, 6, 2),
    Sketcher.Constraint("Tangent", 6, 1, 0, 1),
    Sketcher.Constraint("Vertical", 0),
    Sketcher.Constraint("Horizontal", 1),
    Sketcher.Constraint("Vertical", 2),
    Sketcher.Constraint("Horizontal", 3),
    Sketcher.Constraint("Vertical", 4),
    Sketcher.Constraint("PointOnObject", 0, 2, -1),
    Sketcher.Constraint("Equal", 0, 4),
    Sketcher.Constraint("DistanceX", 1, 1, 1, 2, Q("4 in")),
    Sketcher.Constraint("DistanceX", 3, 2, 3, 1, Q("16 in")),
    Sketcher.Constraint("DistanceY", 0, 2, 0, 1, Q("8 in")),
    Sketcher.Constraint("DistanceY", 2, 1, 2, 2, Q("48 in")),
    Sketcher.Constraint("DistanceX", -1, 1, 0, 2, Q("20 in")),
    Sketcher.Constraint("Radius", 5, 567.266667),
])
pad4 = doc.addObject("PartDesign::Pad", "Pad003")
body6.addObject(pad4)
pad4.Profile = sketch9
pad4.Length = Q("0.25 in")
body7 = doc.addObject("PartDesign::Body", "Body006")

# Sketch on XY plane
sketch10 = doc.addObject("Sketcher::SketchObject", "Sketch009")
body7.addObject(sketch10)
sketch10.AttachmentSupport = (doc.getObject("XY_Plane006"), [""])
sketch10.MapMode = "FlatFace"
sketch10.addGeometry([
    Part.LineSegment(Vector(102, 1219, 0), Vector(0, 1219, 0)),  # 0
    Part.LineSegment(Vector(0, 1219, 0), Vector(0, 0, 0)),  # 1
    Part.LineSegment(Vector(0, 0, 0), Vector(406, 0, 0)),  # 2
    Part.LineSegment(Vector(406, 0, 0), Vector(406, 7, 0)),  # 3
    Part.LineSegment(Vector(406, 7, 0), Vector(6, 7, 0)),  # 4
    Part.LineSegment(Vector(6, 7, 0), Vector(6, 1213, 0)),  # 5
    Part.LineSegment(Vector(6, 1213, 0), Vector(102, 1213, 0)),  # 6
    Part.LineSegment(Vector(102, 1213, 0), Vector(102, 1219, 0)),  # 7
], False)
sketch10.addConstraint([
    Sketcher.Constraint("Coincident", 0, 2, 1, 1),
    Sketcher.Constraint("Coincident", 1, 2, 2, 1),
    Sketcher.Constraint("Coincident", 2, 2, 3, 1),
    Sketcher.Constraint("Coincident", 3, 2, 4, 1),
    Sketcher.Constraint("Coincident", 4, 2, 5, 1),
    Sketcher.Constraint("Coincident", 5, 2, 6, 1),
    Sketcher.Constraint("Coincident", 6, 2, 7, 1),
    Sketcher.Constraint("Coincident", 7, 2, 0, 1),
    Sketcher.Constraint("Horizontal", 0),
    Sketcher.Constraint("Vertical", 1),
    Sketcher.Constraint("Horizontal", 2),
    Sketcher.Constraint("Vertical", 3),
    Sketcher.Constraint("Horizontal", 4),
    Sketcher.Constraint("Vertical", 5),
    Sketcher.Constraint("Horizontal", 6),
    Sketcher.Constraint("Vertical", 7),
    Sketcher.Constraint("Coincident", 1, 2, -1, 1),
    Sketcher.Constraint("DistanceX", 0, 2, 0, 1, Q("4 in")),
    Sketcher.Constraint("DistanceX", 2, 1, 2, 2, Q("16 in")),
    Sketcher.Constraint("DistanceY", 1, 2, 1, 1, Q("48 in")),
    Sketcher.Constraint("DistanceY", 7, 1, 7, 2, 6.04926),
    Sketcher.Constraint("DistanceX", 4, 2, 4, 1, 399.916153),
    Sketcher.Constraint("DistanceY", 3, 1, 3, 2, 6.583584),
])
pad5 = doc.addObject("PartDesign::Pad", "Pad004")
body7.addObject(pad5)
pad5.Profile = sketch10
pad5.Length = Q("4 in")
body8 = doc.addObject("PartDesign::Body", "Body007")

# Sketch on XY plane
sketch11 = doc.addObject("Sketcher::SketchObject", "Sketch010")
body8.addObject(sketch11)
sketch11.AttachmentSupport = (doc.getObject("XY_Plane007"), [""])
sketch11.MapMode = "FlatFace"
sketch11.addGeometry([
    Part.LineSegment(Vector(508, 7, 0), Vector(508, 0, 0)),  # 0
    Part.LineSegment(Vector(508, 0, 0), Vector(610, 0, 0)),  # 1
    Part.LineSegment(Vector(610, 0, 0), Vector(610, 1219, 0)),  # 2
    Part.LineSegment(Vector(610, 1219, 0), Vector(203, 1219, 0)),  # 3
    Part.LineSegment(Vector(203, 1219, 0), Vector(203, 1213, 0)),  # 4
    Part.LineSegment(Vector(203, 1213, 0), Vector(601, 1213, 0)),  # 5
    Part.LineSegment(Vector(601, 1213, 0), Vector(601, 7, 0)),  # 6
    Part.LineSegment(Vector(601, 7, 0), Vector(508, 7, 0)),  # 7
], False)
sketch11.addConstraint([
    Sketcher.Constraint("Coincident", 0, 2, 1, 1),
    Sketcher.Constraint("Coincident", 1, 2, 2, 1),
    Sketcher.Constraint("Coincident", 2, 2, 3, 1),
    Sketcher.Constraint("Coincident", 3, 2, 4, 1),
    Sketcher.Constraint("Coincident", 4, 2, 5, 1),
    Sketcher.Constraint("Coincident", 5, 2, 6, 1),
    Sketcher.Constraint("Coincident", 6, 2, 7, 1),
    Sketcher.Constraint("Coincident", 7, 2, 0, 1),
    Sketcher.Constraint("Vertical", 0),
    Sketcher.Constraint("Horizontal", 1),
    Sketcher.Constraint("Vertical", 2),
    Sketcher.Constraint("Horizontal", 3),
    Sketcher.Constraint("Vertical", 4),
    Sketcher.Constraint("Horizontal", 5),
    Sketcher.Constraint("Vertical", 6),
    Sketcher.Constraint("Horizontal", 7),
    Sketcher.Constraint("PointOnObject", 0, 2, -1),
    Sketcher.Constraint("DistanceX", 1, 1, 1, 2, Q("4 in")),
    Sketcher.Constraint("DistanceX", 3, 2, 3, 1, Q("16 in")),
    Sketcher.Constraint("DistanceY", 2, 1, 2, 2, Q("48 in")),
    Sketcher.Constraint("DistanceX", -1, 1, 0, 2, Q("20 in")),
    Sketcher.Constraint("DistanceY", 4, 2, 4, 1, 6.04926),
    Sketcher.Constraint("DistanceX", 5, 1, 5, 2, 397.901816),
    Sketcher.Constraint("DistanceY", 0, 2, 0, 1, 6.583584),
])
pad6 = doc.addObject("PartDesign::Pad", "Pad005")
body8.addObject(pad6)
pad6.Profile = sketch11
pad6.Length = Q("4 in")
body9 = doc.addObject("PartDesign::Body", "Body008")

# Sketch on XY plane
sketch12 = doc.addObject("Sketcher::SketchObject", "Sketch011")
body9.addObject(sketch12)
sketch12.AttachmentSupport = (doc.getObject("XY_Plane008"), [""])
sketch12.MapMode = "FlatFace"
sketch12.AttachmentOffset = App.Placement(Vector(0, 0, 4 * 25.4), App.Rotation())
sketch12.addGeometry([
    Part.LineSegment(Vector(0, 1219, 0), Vector(0, 0, 0)),  # 0
    Part.LineSegment(Vector(0, 0, 0), Vector(610, 0, 0)),  # 1
    Part.LineSegment(Vector(610, 0, 0), Vector(610, 1219, 0)),  # 2
    Part.LineSegment(Vector(610, 1219, 0), Vector(0, 1219, 0)),  # 3
    Part.LineSegment(Vector(470, 39, 0), Vector(444, 39, 0)),  # 4
    Part.LineSegment(Vector(444, 39, 0), Vector(444, 165, 0)),  # 5
    Part.LineSegment(Vector(444, 165, 0), Vector(470, 165, 0)),  # 6
    Part.LineSegment(Vector(470, 165, 0), Vector(470, 39, 0)),  # 7
    Part.ArcOfCircle(Part.Circle(Vector(-161, 203, 0), Vector(0, 0, 1), 632), math.radians(3.46), math.radians(16.95)),  # 8
    Part.LineSegment(Vector(470, 241, 0), Vector(444, 240, 0)),  # 9
    Part.ArcOfCircle(Part.Circle(Vector(-161, 203, 0), Vector(0, 0, 1), 606), math.radians(3.46), math.radians(16.95)),  # 10
    Part.LineSegment(Vector(419, 380, 0), Vector(444, 387, 0)),  # 11
    Part.ArcOfCircle(Part.Circle(Vector(-161, 203, 0), Vector(0, 0, 1), 605), math.radians(24.16), math.radians(37.5)),  # 12
    Part.LineSegment(Vector(319, 572, 0), Vector(340, 587, 0)),  # 13
    Part.ArcOfCircle(Part.Circle(Vector(-161, 203, 0), Vector(0, 0, 1), 631), math.radians(24.16), math.radians(37.5)),  # 14
    Part.LineSegment(Vector(415, 461, 0), Vector(391, 451, 0)),  # 15
    Part.LineSegment(Vector(195, 758, 0), Vector(218, 768, 0)),  # 16
    Part.ArcOfCircle(Part.Circle(Vector(770, 1016, 0), Vector(0, 0, 1), 605), math.radians(-155.84), math.radians(-142.5)),  # 17
    Part.LineSegment(Vector(290, 647, 0), Vector(270, 632, 0)),  # 18
    Part.ArcOfCircle(Part.Circle(Vector(770, 1016, 0), Vector(0, 0, 1), 631), math.radians(-155.84), math.radians(-142.5)),  # 19
    Part.LineSegment(Vector(141, 976, 0), Vector(166, 978, 0)),  # 20
    Part.ArcOfCircle(Part.Circle(Vector(770, 1016, 0), Vector(0, 0, 1), 605), math.radians(-176.39), math.radians(-163.05)),  # 21
    Part.LineSegment(Vector(191, 840, 0), Vector(167, 832, 0)),  # 22
    Part.ArcOfCircle(Part.Circle(Vector(770, 1016, 0), Vector(0, 0, 1), 631), math.radians(-176.39), math.radians(-163.05)),  # 23
    Part.LineSegment(Vector(165, 1041, 0), Vector(140, 1041, 0)),  # 24
    Part.LineSegment(Vector(140, 1041, 0), Vector(140, 1194, 0)),  # 25
    Part.LineSegment(Vector(140, 1194, 0), Vector(165, 1194, 0)),  # 26
    Part.LineSegment(Vector(165, 1194, 0), Vector(165, 1041, 0)),  # 27
], False)
sketch12.addConstraint([
    Sketcher.Constraint("Coincident", 0, 2, 1, 1),
    Sketcher.Constraint("Coincident", 1, 2, 2, 1),
    Sketcher.Constraint("Coincident", 2, 2, 3, 1),
    Sketcher.Constraint("Coincident", 3, 2, 0, 1),
    Sketcher.Constraint("Coincident", 4, 2, 5, 1),
    Sketcher.Constraint("Coincident", 5, 2, 6, 1),
    Sketcher.Constraint("Coincident", 6, 2, 7, 1),
    Sketcher.Constraint("Coincident", 7, 2, 4, 1),
    Sketcher.Constraint("Coincident", 8, 1, 9, 1),
    Sketcher.Constraint("Coincident", 9, 2, 10, 1),
    Sketcher.Constraint("Coincident", 10, 2, 11, 1),
    Sketcher.Constraint("Coincident", 11, 2, 8, 2),
    Sketcher.Constraint("Coincident", 12, 2, 13, 1),
    Sketcher.Constraint("Coincident", 13, 2, 14, 2),
    Sketcher.Constraint("Coincident", 14, 1, 15, 1),
    Sketcher.Constraint("Coincident", 15, 2, 12, 1),
    Sketcher.Constraint("Coincident", 16, 2, 17, 1),
    Sketcher.Constraint("Coincident", 17, 2, 18, 1),
    Sketcher.Constraint("Coincident", 18, 2, 19, 2),
    Sketcher.Constraint("Coincident", 19, 1, 16, 1),
    Sketcher.Constraint("Coincident", 20, 2, 21, 1),
    Sketcher.Constraint("Coincident", 21, 2, 22, 1),
    Sketcher.Constraint("Coincident", 22, 2, 23, 2),
    Sketcher.Constraint("Coincident", 23, 1, 20, 1),
    Sketcher.Constraint("Coincident", 24, 2, 25, 1),
    Sketcher.Constraint("Coincident", 25, 2, 26, 1),
    Sketcher.Constraint("Coincident", 26, 2, 27, 1),
    Sketcher.Constraint("Coincident", 27, 2, 24, 1),
    Sketcher.Constraint("Vertical", 0),
    Sketcher.Constraint("Horizontal", 1),
    Sketcher.Constraint("Vertical", 2),
    Sketcher.Constraint("Horizontal", 3),
    Sketcher.Constraint("Horizontal", 4),
    Sketcher.Constraint("Vertical", 5),
    Sketcher.Constraint("Horizontal", 6),
    Sketcher.Constraint("Vertical", 7),
    Sketcher.Constraint("Horizontal", 24),
    Sketcher.Constraint("Vertical", 25),
    Sketcher.Constraint("Horizontal", 26),
    Sketcher.Constraint("Vertical", 27),
    Sketcher.Constraint("Coincident", 0, 2, -1, 1),
    Sketcher.Constraint("Coincident", 10, 3, 8, 3),
    Sketcher.Constraint("Coincident", 12, 3, 8, 3),
    Sketcher.Constraint("Coincident", 14, 3, 8, 3),
    Sketcher.Constraint("Coincident", 19, 3, 17, 3),
    Sketcher.Constraint("Coincident", 21, 3, 17, 3),
    Sketcher.Constraint("Coincident", 23, 3, 17, 3),
    Sketcher.Constraint("Equal", 12, 17),
    Sketcher.Constraint("Equal", 14, 19),
    Sketcher.Constraint("Equal", 17, 21),
    Sketcher.Constraint("Equal", 19, 23),
    Sketcher.Constraint("Parallel", 15, 16),
    Sketcher.Constraint("Parallel", 13, 18),
    Sketcher.Constraint("Vertical", 7, 2, 8, 1),
    Sketcher.Constraint("Vertical", 5, 2, 9, 2),
    Sketcher.Constraint("Equal", 6, 24),
    Sketcher.Constraint("DistanceX", 1, 1, 1, 2, Q("24 in")),
    Sketcher.Constraint("DistanceX", 4, 2, 4, 1, Q("1 in")),
    Sketcher.Constraint("DistanceY", 0, 2, 0, 1, Q("48 in")),
    Sketcher.Constraint("DistanceY", 25, 1, 25, 2, Q("6 in")),
    Sketcher.Constraint("Distance", 13, Q("1 in")),
    Sketcher.Constraint("DistanceY", -1, 1, 8, 3, Q("8 in")),
    Sketcher.Constraint("DistanceY", -1, 1, 17, 3, Q("40 in")),
    Sketcher.Constraint("DistanceY", -1, 1, 24, 2, Q("41 in")),
    Sketcher.Constraint("DistanceX", -1, 1, 4, 2, Q("17.5 in")),
    Sketcher.Constraint("DistanceY", -1, 1, 5, 2, Q("6.5 in")),
    Sketcher.Constraint("DistanceY", -1, 1, 20, 2, Q("38.5 in")),
    Sketcher.Constraint("DistanceX", -1, 1, 24, 2, Q("5.5 in")),
    Sketcher.Constraint("Radius", 8, 631.91629),
    Sketcher.Constraint("Radius", 10, 606.469997),
    Sketcher.Constraint("Radius", 12, 605.366667),
    Sketcher.Constraint("DistanceY", 5, 1, 5, 2, 126.473148),
    Sketcher.Constraint("DistanceX", -1, 1, 22, 2, 167.093199),
    Sketcher.Constraint("DistanceY", -1, 1, 9, 2, 239.765772),
    Sketcher.Constraint("DistanceX", -1, 1, 11, 2, 443.585361),
    Sketcher.Constraint("DistanceX", -1, 1, 13, 2, 339.529528),
    Sketcher.Constraint("DistanceY", -1, 1, 15, 2, 451.011172),
    Sketcher.Constraint("DistanceY", -1, 1, 16, 2, 768.188828),
    Sketcher.Constraint("DistanceX", -1, 1, 18, 2, 270.070472),
    Sketcher.Constraint("DistanceX", -1, 1, 20, 2, 166.300141),
    Sketcher.Constraint("Angle", 11, Q("16.954206 deg")),
    Sketcher.Constraint("Angle", 13, Q("37.503677 deg")),
    Sketcher.Constraint("Angle", 15, Q("-155.835542 deg")),
    Sketcher.Constraint("Angle", 20, Q("3.608413 deg")),
    Sketcher.Constraint("Angle", 22, Q("-163.052368 deg")),
])
pad7 = doc.addObject("PartDesign::Pad", "Pad006")
body9.addObject(pad7)
pad7.Profile = sketch12
pad7.Length = Q("0.25 in")
body4.Visibility = False

doc.recompute()
